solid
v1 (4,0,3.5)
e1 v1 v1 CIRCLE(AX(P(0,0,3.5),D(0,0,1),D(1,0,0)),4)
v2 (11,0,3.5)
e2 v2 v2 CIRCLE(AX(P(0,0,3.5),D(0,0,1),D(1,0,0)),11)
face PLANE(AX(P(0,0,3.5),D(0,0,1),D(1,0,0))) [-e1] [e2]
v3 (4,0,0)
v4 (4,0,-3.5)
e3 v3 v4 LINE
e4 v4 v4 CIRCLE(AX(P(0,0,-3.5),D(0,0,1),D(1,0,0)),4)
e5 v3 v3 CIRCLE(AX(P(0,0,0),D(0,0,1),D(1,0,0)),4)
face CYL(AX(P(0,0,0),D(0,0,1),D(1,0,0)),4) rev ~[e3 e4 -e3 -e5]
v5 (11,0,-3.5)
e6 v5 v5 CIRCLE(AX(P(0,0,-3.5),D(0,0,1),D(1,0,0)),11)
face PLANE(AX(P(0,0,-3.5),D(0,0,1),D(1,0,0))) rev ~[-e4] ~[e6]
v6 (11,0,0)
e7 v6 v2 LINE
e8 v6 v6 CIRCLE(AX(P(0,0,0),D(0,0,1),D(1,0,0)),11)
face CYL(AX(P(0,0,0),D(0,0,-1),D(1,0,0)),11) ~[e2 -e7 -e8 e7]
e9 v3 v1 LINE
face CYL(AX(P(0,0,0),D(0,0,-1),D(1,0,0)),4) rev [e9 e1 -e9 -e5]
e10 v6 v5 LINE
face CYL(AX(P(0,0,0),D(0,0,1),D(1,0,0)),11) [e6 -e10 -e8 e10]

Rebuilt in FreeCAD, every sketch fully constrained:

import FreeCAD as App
import Part
import Sketcher

doc = App.newDocument("Part")
body = doc.addObject("PartDesign::Body", "Body")

sketch1 = body.newObject("Sketcher::SketchObject", "Sketch")
sketch1.AttachmentSupport = (doc.getObject("XY_Plane"), [""])
sketch1.MapMode = "FlatFace"
sketch1.addGeometry([
    Part.Circle(App.Vector(0, 0, 0), App.Vector(0, 0, 1), 11),
    Part.Circle(App.Vector(0, 0, 0), App.Vector(0, 0, 1), 4),
], False)
sketch1.addConstraint([
    Sketcher.Constraint("Coincident", 0, 3, -1, 1),
    Sketcher.Constraint("Coincident", 1, 3, -1, 1),
    Sketcher.Constraint("Diameter", 0, 22.0),
    Sketcher.Constraint("Diameter", 1, 8.0),
])
pad1 = body.newObject("PartDesign::Pad", "Pad")
pad1.Profile = sketch1
pad1.Length = 7
pad1.Midplane = True

doc.recompute()
